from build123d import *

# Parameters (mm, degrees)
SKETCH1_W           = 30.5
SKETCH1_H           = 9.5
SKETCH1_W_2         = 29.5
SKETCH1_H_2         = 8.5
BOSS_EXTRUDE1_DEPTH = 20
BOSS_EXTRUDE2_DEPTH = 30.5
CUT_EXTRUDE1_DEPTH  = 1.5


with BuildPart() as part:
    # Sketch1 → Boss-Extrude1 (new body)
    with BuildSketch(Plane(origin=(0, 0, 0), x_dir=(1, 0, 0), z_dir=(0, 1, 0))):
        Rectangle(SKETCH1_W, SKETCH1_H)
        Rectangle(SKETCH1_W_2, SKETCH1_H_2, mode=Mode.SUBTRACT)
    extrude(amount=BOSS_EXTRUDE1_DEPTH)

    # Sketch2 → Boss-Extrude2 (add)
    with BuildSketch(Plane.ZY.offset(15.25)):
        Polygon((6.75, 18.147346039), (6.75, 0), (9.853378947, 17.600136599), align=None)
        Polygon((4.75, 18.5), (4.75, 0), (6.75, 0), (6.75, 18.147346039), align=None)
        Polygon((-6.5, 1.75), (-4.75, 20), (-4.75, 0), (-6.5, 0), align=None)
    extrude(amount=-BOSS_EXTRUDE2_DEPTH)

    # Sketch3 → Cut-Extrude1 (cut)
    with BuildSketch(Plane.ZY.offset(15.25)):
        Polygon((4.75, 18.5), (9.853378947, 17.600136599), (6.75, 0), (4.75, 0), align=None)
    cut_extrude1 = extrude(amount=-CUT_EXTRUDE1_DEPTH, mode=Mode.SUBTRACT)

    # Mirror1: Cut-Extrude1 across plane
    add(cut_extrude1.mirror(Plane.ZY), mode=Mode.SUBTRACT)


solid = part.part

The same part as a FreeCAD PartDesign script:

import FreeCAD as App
import Part
import Sketcher
Q = App.Units.Quantity

doc = App.newDocument("Part")
body = doc.addObject("PartDesign::Body", "Body")

sketch1 = body.newObject("Sketcher::SketchObject", "Sketch")
sketch1.AttachmentSupport = (doc.getObject("XZ_Plane"), [""])
sketch1.MapMode = "FlatFace"
sketch1.addGeometry(Part.LineSegment(App.Vector(-15.25, -4.75, 0), App.Vector(-15.25, 4.75, 0)), False)
sketch1.addGeometry(Part.LineSegment(App.Vector(-15.25, 4.75, 0), App.Vector(15.25, 4.75, 0)), False)
sketch1.addGeometry(Part.LineSegment(App.Vector(15.25, 4.75, 0), App.Vector(15.25, -4.75, 0)), False)
sketch1.addGeometry(Part.LineSegment(App.Vector(15.25, -4.75, 0), App.Vector(-15.25, -4.75, 0)), False)
sketch1.addGeometry(Part.LineSegment(App.Vector(14.75, 4.25, 0), App.Vector(-14.75, 4.25, 0)), False)
sketch1.addGeometry(Part.LineSegment(App.Vector(-14.75, 4.25, 0), App.Vector(-14.75, -4.25, 0)), False)
sketch1.addGeometry(Part.LineSegment(App.Vector(-14.75, -4.25, 0), App.Vector(14.75, -4.25, 0)), False)
sketch1.addGeometry(Part.LineSegment(App.Vector(14.75, -4.25, 0), App.Vector(14.75, 4.25, 0)), False)
sketch1.addConstraint(Sketcher.Constraint("Coincident", 0, 2, 1, 1))
sketch1.addConstraint(Sketcher.Constraint("Coincident", 1, 2, 2, 1))
sketch1.addConstraint(Sketcher.Constraint("Coincident", 2, 2, 3, 1))
sketch1.addConstraint(Sketcher.Constraint("Coincident", 3, 2, 0, 1))
sketch1.addConstraint(Sketcher.Constraint("Coincident", 4, 2, 5, 1))
sketch1.addConstraint(Sketcher.Constraint("Coincident", 5, 2, 6, 1))
sketch1.addConstraint(Sketcher.Constraint("Coincident", 6, 2, 7, 1))
sketch1.addConstraint(Sketcher.Constraint("Coincident", 7, 2, 4, 1))
sketch1.addConstraint(Sketcher.Constraint("Vertical", 0))
sketch1.addConstraint(Sketcher.Constraint("Horizontal", 1))
sketch1.addConstraint(Sketcher.Constraint("Vertical", 2))
sketch1.addConstraint(Sketcher.Constraint("Horizontal", 3))
sketch1.addConstraint(Sketcher.Constraint("Horizontal", 4))
sketch1.addConstraint(Sketcher.Constraint("Vertical", 5))
sketch1.addConstraint(Sketcher.Constraint("Horizontal", 6))
sketch1.addConstraint(Sketcher.Constraint("Vertical", 7))
sketch1.addConstraint(Sketcher.Constraint("Symmetric", 0, 2, 2, 2, -1, 1))
sketch1.addConstraint(Sketcher.Constraint("Symmetric", 4, 2, 6, 2, -1, 1))
sketch1.addConstraint(Sketcher.Constraint("DistanceX", 1, 1, 1, 2, Q("30.5 mm")))
sketch1.addConstraint(Sketcher.Constraint("DistanceX", 4, 2, 4, 1, Q("29.5 mm")))
sketch1.addConstraint(Sketcher.Constraint("DistanceY", 0, 1, 0, 2, Q("9.5 mm")))
sketch1.addConstraint(Sketcher.Constraint("DistanceY", 5, 2, 5, 1, Q("8.5 mm")))
pad1 = body.newObject("PartDesign::Pad", "Pad")
pad1.Profile = sketch1
pad1.Length = 20
pad1.Reversed = True

sketch2 = body.newObject("Sketcher::SketchObject", "Sketch001")
sketch2.AttachmentSupport = (doc.getObject("YZ_Plane"), [""])
sketch2.MapMode = "FlatFace"
sketch2.AttachmentOffset = App.Placement(App.Vector(0, 0, -15.25), App.Rotation())
sketch2.addGeometry(Part.LineSegment(App.Vector(0, 6.75, 0), App.Vector(17.600137, 9.853379, 0)), False)
sketch2.addGeometry(Part.LineSegment(App.Vector(17.600137, 9.853379, 0), App.Vector(18.147346, 6.75, 0)), False)
sketch2.addGeometry(Part.LineSegment(App.Vector(18.147346, 6.75, 0), App.Vector(18.5, 4.75, 0)), False)
sketch2.addGeometry(Part.LineSegment(App.Vector(18.5, 4.75, 0), App.Vector(0, 4.75, 0)), False)
sketch2.addGeometry(Part.LineSegment(App.Vector(0, 4.75, 0), App.Vector(0, 6.75, 0)), False)
sketch2.addGeometry(Part.LineSegment(App.Vector(20, -4.75, 0), App.Vector(1.75, -6.5, 0)), False)
sketch2.addGeometry(Part.LineSegment(App.Vector(1.75, -6.5, 0), App.Vector(0, -6.5, 0)), False)
sketch2.addGeometry(Part.LineSegment(App.Vector(0, -6.5, 0), App.Vector(0, -4.75, 0)), False)
sketch2.addGeometry(Part.LineSegment(App.Vector(0, -4.75, 0), App.Vector(20, -4.75, 0)), False)
sketch2.addConstraint(Sketcher.Constraint("Coincident", 0, 2, 1, 1))
sketch2.addConstraint(Sketcher.Constraint("Coincident", 1, 2, 2, 1))
sketch2.addConstraint(Sketcher.Constraint("Coincident", 2, 2, 3, 1))
sketch2.addConstraint(Sketcher.Constraint("Coincident", 3, 2, 4, 1))
sketch2.addConstraint(Sketcher.Constraint("Coincident", 4, 2, 0, 1))
sketch2.addConstraint(Sketcher.Constraint("Coincident", 5, 2, 6, 1))
sketch2.addConstraint(Sketcher.Constraint("Coincident", 6, 2, 7, 1))
sketch2.addConstraint(Sketcher.Constraint("Coincident", 7, 2, 8, 1))
sketch2.addConstraint(Sketcher.Constraint("Coincident", 8, 2, 5, 1))
sketch2.addConstraint(Sketcher.Constraint("Horizontal", 3))
sketch2.addConstraint(Sketcher.Constraint("Vertical", 4))
sketch2.addConstraint(Sketcher.Constraint("Horizontal", 6))
sketch2.addConstraint(Sketcher.Constraint("Vertical", 7))
sketch2.addConstraint(Sketcher.Constraint("Horizontal", 8))
sketch2.addConstraint(Sketcher.Constraint("Symmetric", 3, 2, 7, 2, -1, 1))
sketch2.addConstraint(Sketcher.Constraint("PointOnObject", 3, 2, -2))
sketch2.addConstraint(Sketcher.Constraint("Perpendicular", 0, 1))
sketch2.addConstraint(Sketcher.Constraint("Parallel", 1, 2))
sketch2.addConstraint(Sketcher.Constraint("Horizontal", 1, 2, 4, 2))
sketch2.addConstraint(Sketcher.Constraint("Equal", 6, 7))
sketch2.addConstraint(Sketcher.Constraint("DistanceX", 8, 1, 8, 2, Q("20 mm")))
sketch2.addConstraint(Sketcher.Constraint("DistanceY", 4, 1, 4, 2, Q("2 mm")))
sketch2.addConstraint(Sketcher.Constraint("Angle", 0, Q("10 deg")))
sketch2.addConstraint(Sketcher.Constraint("DistanceX", 3, 2, 3, 1, Q("18.5 mm")))
sketch2.addConstraint(Sketcher.Constraint("DistanceX", 6, 2, 6, 1, Q("1.75 mm")))
sketch2.addConstraint(Sketcher.Constraint("DistanceY", 5, 2, -1, 1, Q("6.5 mm")))
pad2 = body.newObject("PartDesign::Pad", "Pad001")
pad2.Profile = sketch2
pad2.Length = 30.5

sketch3 = body.newObject("Sketcher::SketchObject", "Sketch002")
sketch3.AttachmentSupport = (doc.getObject("YZ_Plane"), [""])
sketch3.MapMode = "FlatFace"
sketch3.AttachmentOffset = App.Placement(App.Vector(0, 0, -15.25), App.Rotation())
sketch3.addGeometry(Part.LineSegment(App.Vector(17.600137, 9.853379, 0), App.Vector(18.5, 4.75, 0)), False)
sketch3.addGeometry(Part.LineSegment(App.Vector(18.5, 4.75, 0), App.Vector(0, 4.75, 0)), False)
sketch3.addGeometry(Part.LineSegment(App.Vector(0, 4.75, 0), App.Vector(0, 6.75, 0)), False)
sketch3.addGeometry(Part.LineSegment(App.Vector(0, 6.75, 0), App.Vector(17.600137, 9.853379, 0)), False)
sketch3.addConstraint(Sketcher.Constraint("Coincident", 0, 2, 1, 1))
sketch3.addConstraint(Sketcher.Constraint("Coincident", 1, 2, 2, 1))
sketch3.addConstraint(Sketcher.Constraint("Coincident", 2, 2, 3, 1))
sketch3.addConstraint(Sketcher.Constraint("Coincident", 3, 2, 0, 1))
sketch3.addConstraint(Sketcher.Constraint("Horizontal", 1))
sketch3.addConstraint(Sketcher.Constraint("Vertical", 2))
sketch3.addConstraint(Sketcher.Constraint("PointOnObject", 1, 2, -2))
sketch3.addConstraint(Sketcher.Constraint("Perpendicular", 0, 3))
sketch3.addConstraint(Sketcher.Constraint("DistanceY", 2, 1, 2, 2, Q("2 mm")))
sketch3.addConstraint(Sketcher.Constraint("Angle", 0, Q("-80 deg")))
sketch3.addConstraint(Sketcher.Constraint("DistanceX", 1, 2, 1, 1, Q("18.5 mm")))
sketch3.addConstraint(Sketcher.Constraint("DistanceY", -1, 1, 0, 2, Q("4.75 mm")))
pocket1 = body.newObject("PartDesign::Pocket", "Pocket")
pocket1.Profile = sketch3
pocket1.Length = 1.5
pocket1.Reversed = True
doc.recompute()

mirrored = body.newObject("PartDesign::Mirrored", "Mirrored")
mirrored.Originals = [pocket1]
mirrored.MirrorPlane = (doc.getObject("YZ_Plane"), [""])
body.Tip = mirrored

doc.recompute()
